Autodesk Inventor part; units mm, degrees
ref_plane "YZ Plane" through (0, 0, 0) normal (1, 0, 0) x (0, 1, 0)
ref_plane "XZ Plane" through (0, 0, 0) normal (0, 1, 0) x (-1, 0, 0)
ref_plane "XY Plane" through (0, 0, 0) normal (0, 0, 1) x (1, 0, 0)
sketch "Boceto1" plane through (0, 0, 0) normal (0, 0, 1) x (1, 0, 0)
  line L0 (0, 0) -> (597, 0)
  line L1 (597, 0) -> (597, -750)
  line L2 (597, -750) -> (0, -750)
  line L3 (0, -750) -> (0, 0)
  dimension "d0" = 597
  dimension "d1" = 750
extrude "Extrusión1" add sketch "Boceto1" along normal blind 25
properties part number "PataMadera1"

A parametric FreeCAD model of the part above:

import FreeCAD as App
import Part
import Sketcher

V = App.Vector


def add_polygon(sketch, points):
    """Adds a closed chain of lines whose ends are joined by coincident constraints."""
    first, n = sketch.GeometryCount, len(points)
    for a, b in zip(points, points[1:] + points[:1]):
        sketch.addGeometry(Part.LineSegment(App.Vector(*a, 0), App.Vector(*b, 0)), False)
    for i in range(n):
        sketch.addConstraint(Sketcher.Constraint("Coincident", first + i, 2, first + (i + 1) % n, 1))

doc = App.newDocument("Part")
body = doc.addObject("PartDesign::Body", "Body")

sketch1 = body.newObject("Sketcher::SketchObject", "Sketch")
sketch1.AttachmentSupport = (doc.getObject("XY_Plane"), [""])
sketch1.MapMode = "FlatFace"
add_polygon(sketch1, [(597, 0), (0, 0), (0, -750), (597, -750)])
sketch1.addConstraint(Sketcher.Constraint("Horizontal", 0))
sketch1.addConstraint(Sketcher.Constraint("Vertical", 1))
sketch1.addConstraint(Sketcher.Constraint("Horizontal", 2))
sketch1.addConstraint(Sketcher.Constraint("Vertical", 3))
sketch1.addConstraint(Sketcher.Constraint("Coincident", 0, 2, -1, 1))
sketch1.addConstraint(Sketcher.Constraint("DistanceX", 0, 2, 0, 1, 597.0))
sketch1.addConstraint(Sketcher.Constraint("DistanceY", 1, 2, 1, 1, 750.0))
pad1 = body.newObject("PartDesign::Pad", "Pad")
pad1.Profile = sketch1
pad1.Length = 25

doc.recompute()
